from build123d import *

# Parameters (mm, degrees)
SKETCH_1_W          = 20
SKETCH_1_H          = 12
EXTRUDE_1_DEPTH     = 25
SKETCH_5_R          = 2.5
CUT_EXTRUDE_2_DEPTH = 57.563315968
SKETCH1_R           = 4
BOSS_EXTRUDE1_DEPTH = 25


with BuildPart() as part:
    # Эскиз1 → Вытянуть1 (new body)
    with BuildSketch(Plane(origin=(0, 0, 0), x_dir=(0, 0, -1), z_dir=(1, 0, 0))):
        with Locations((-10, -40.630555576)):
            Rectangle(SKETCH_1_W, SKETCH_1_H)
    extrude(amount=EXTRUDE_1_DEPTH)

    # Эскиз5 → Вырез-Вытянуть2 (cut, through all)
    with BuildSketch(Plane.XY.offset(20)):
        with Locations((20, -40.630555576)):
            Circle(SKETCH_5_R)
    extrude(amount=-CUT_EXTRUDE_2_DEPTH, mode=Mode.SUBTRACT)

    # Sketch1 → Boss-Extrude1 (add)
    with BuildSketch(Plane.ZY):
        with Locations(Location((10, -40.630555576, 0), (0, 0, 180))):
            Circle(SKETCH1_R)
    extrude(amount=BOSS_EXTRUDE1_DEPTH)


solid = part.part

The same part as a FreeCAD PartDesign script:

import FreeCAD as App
import Part
import Sketcher
from FreeCAD import Vector
Q = App.Units.Quantity

doc = App.newDocument("Part")
body = doc.addObject("PartDesign::Body", "Body")

# Sketch on YZ plane
sketch1 = body.newObject("Sketcher::SketchObject", "Sketch")
sketch1.AttachmentSupport = (doc.getObject("YZ_Plane"), [""])
sketch1.MapMode = "FlatFace"
sketch1.addGeometry([
    Part.LineSegment(Vector(-35, 20, 0), Vector(-47, 20, 0)),
    Part.LineSegment(Vector(-47, 20, 0), Vector(-47, 0, 0)),
    Part.LineSegment(Vector(-47, 0, 0), Vector(-35, 0, 0)),
    Part.LineSegment(Vector(-35, 0, 0), Vector(-35, 20, 0)),
], False)
sketch1.addConstraint([
    Sketcher.Constraint("Coincident", 0, 2, 1, 1),
    Sketcher.Constraint("Coincident", 1, 2, 2, 1),
    Sketcher.Constraint("Coincident", 2, 2, 3, 1),
    Sketcher.Constraint("Coincident", 3, 2, 0, 1),
    Sketcher.Constraint("Horizontal", 0),
    Sketcher.Constraint("Vertical", 1),
    Sketcher.Constraint("Horizontal", 2),
    Sketcher.Constraint("Vertical", 3),
    Sketcher.Constraint("PointOnObject", 1, 2, -1),
    Sketcher.Constraint("DistanceX", 0, 2, 0, 1, Q("12 mm")),
    Sketcher.Constraint("DistanceY", 1, 2, 1, 1, Q("20 mm")),
    Sketcher.Constraint("DistanceX", 0, 2, -1, 1, Q("46.630556 mm")),
])
pad1 = body.newObject("PartDesign::Pad", "Pad")
pad1.Profile = sketch1
pad1.Length = 25

# Sketch on XY plane
sketch2 = body.newObject("Sketcher::SketchObject", "Sketch001")
sketch2.AttachmentSupport = (doc.getObject("XY_Plane"), [""])
sketch2.MapMode = "FlatFace"
sketch2.AttachmentOffset = App.Placement(Vector(0, 0, 20), App.Rotation())
sketch2.addGeometry(Part.Circle(Vector(20, -40.6, 0), Vector(0, 0, 1), 2.5), False)
sketch2.addConstraint([
    Sketcher.Constraint("Diameter", 0, Q("5 mm")),
    Sketcher.Constraint("DistanceX", -1, 1, 0, 3, Q("20 mm")),
    Sketcher.Constraint("DistanceY", 0, 3, -1, 1, Q("40.630556 mm")),
])
pocket1 = body.newObject("PartDesign::Pocket", "Pocket")
pocket1.Profile = sketch2
pocket1.Type = "ThroughAll"

# Sketch on YZ plane
sketch3 = body.newObject("Sketcher::SketchObject", "Sketch002")
sketch3.AttachmentSupport = (doc.getObject("YZ_Plane"), [""])
sketch3.MapMode = "FlatFace"
sketch3.addGeometry(Part.Circle(Vector(-40.6, 10, 0), Vector(0, 0, 1), 4), False)
sketch3.addConstraint([
    Sketcher.Constraint("Diameter", 0, Q("8 mm")),
    Sketcher.Constraint("DistanceY", -1, 1, 0, 3, Q("10 mm")),
    Sketcher.Constraint("DistanceX", 0, 3, -1, 1, Q("40.630556 mm")),
])
pad2 = body.newObject("PartDesign::Pad", "Pad001")
pad2.Profile = sketch3
pad2.Length = 25
pad2.Reversed = True

doc.recompute()
